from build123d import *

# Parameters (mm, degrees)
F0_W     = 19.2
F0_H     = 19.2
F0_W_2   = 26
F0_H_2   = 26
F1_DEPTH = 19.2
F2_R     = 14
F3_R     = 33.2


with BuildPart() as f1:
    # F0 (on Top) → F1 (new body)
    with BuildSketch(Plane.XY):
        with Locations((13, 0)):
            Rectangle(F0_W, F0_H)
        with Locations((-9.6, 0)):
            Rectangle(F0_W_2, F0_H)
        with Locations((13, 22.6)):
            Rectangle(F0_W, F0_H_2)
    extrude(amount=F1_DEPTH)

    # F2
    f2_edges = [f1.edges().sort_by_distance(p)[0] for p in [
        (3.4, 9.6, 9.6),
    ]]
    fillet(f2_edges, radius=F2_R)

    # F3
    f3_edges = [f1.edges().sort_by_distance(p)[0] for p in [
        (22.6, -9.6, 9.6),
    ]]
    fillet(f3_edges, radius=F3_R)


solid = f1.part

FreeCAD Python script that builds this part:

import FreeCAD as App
import Part
import Sketcher


def edges_at(feature, points):
    """Names of the edges that pass closest to the given points."""
    edges = feature.Shape.Edges
    near = lambda p: min(range(len(edges)), key=lambda i: edges[i].distToShape(Part.Vertex(*p))[0])
    return sorted({f"Edge{near(p) + 1}" for p in points})


def add_polygon(sketch, points):
    """Adds a closed chain of lines whose ends are joined by coincident constraints."""
    first, n = sketch.GeometryCount, len(points)
    for a, b in zip(points, points[1:] + points[:1]):
        sketch.addGeometry(Part.LineSegment(App.Vector(*a, 0), App.Vector(*b, 0)), False)
    for i in range(n):
        sketch.addConstraint(Sketcher.Constraint("Coincident", first + i, 2, first + (i + 1) % n, 1))

doc = App.newDocument("Part")
body = doc.addObject("PartDesign::Body", "Body")

# Sketch on XY plane
sketch1 = body.newObject("Sketcher::SketchObject", "Sketch")
sketch1.AttachmentSupport = (doc.getObject("XY_Plane"), [""])
sketch1.MapMode = "FlatFace"
add_polygon(sketch1, [(22.6, -9.6), (22.6, 35.6), (3.4, 35.6), (3.4, 9.6), (-22.6, 9.6), (-22.6, -9.6)])  # lines 0-5
sketch1.addConstraint(Sketcher.Constraint("Vertical", 0))
sketch1.addConstraint(Sketcher.Constraint("Horizontal", 1))
sketch1.addConstraint(Sketcher.Constraint("Vertical", 2))
sketch1.addConstraint(Sketcher.Constraint("Horizontal", 3))
sketch1.addConstraint(Sketcher.Constraint("Vertical", 4))
sketch1.addConstraint(Sketcher.Constraint("Horizontal", 5))
sketch1.addConstraint(Sketcher.Constraint("Symmetric", 3, 2, 5, 2, -1, 1))
sketch1.addConstraint(Sketcher.Constraint("Equal", 5, 0))
sketch1.addConstraint(Sketcher.Constraint("Equal", 3, 2))
sketch1.addConstraint(Sketcher.Constraint("DistanceX", 3, 2, 3, 1, 26.0))
sketch1.addConstraint(Sketcher.Constraint("DistanceX", 1, 2, 1, 1, 19.2))
pad1 = body.newObject("PartDesign::Pad", "Pad")
pad1.Profile = sketch1
pad1.Length = 19.2
doc.recompute()

fillet = body.newObject("PartDesign::Fillet", "Fillet")
fillet.Base = (pad1, edges_at(pad1, [(3.4, 9.6, 9.6)]))
fillet.Radius = 14
doc.recompute()

fillet2 = body.newObject("PartDesign::Fillet", "Fillet001")
fillet2.Base = (fillet, edges_at(fillet, [(22.6, -9.6, 9.6)]))
fillet2.Radius = 33.2

doc.recompute()
